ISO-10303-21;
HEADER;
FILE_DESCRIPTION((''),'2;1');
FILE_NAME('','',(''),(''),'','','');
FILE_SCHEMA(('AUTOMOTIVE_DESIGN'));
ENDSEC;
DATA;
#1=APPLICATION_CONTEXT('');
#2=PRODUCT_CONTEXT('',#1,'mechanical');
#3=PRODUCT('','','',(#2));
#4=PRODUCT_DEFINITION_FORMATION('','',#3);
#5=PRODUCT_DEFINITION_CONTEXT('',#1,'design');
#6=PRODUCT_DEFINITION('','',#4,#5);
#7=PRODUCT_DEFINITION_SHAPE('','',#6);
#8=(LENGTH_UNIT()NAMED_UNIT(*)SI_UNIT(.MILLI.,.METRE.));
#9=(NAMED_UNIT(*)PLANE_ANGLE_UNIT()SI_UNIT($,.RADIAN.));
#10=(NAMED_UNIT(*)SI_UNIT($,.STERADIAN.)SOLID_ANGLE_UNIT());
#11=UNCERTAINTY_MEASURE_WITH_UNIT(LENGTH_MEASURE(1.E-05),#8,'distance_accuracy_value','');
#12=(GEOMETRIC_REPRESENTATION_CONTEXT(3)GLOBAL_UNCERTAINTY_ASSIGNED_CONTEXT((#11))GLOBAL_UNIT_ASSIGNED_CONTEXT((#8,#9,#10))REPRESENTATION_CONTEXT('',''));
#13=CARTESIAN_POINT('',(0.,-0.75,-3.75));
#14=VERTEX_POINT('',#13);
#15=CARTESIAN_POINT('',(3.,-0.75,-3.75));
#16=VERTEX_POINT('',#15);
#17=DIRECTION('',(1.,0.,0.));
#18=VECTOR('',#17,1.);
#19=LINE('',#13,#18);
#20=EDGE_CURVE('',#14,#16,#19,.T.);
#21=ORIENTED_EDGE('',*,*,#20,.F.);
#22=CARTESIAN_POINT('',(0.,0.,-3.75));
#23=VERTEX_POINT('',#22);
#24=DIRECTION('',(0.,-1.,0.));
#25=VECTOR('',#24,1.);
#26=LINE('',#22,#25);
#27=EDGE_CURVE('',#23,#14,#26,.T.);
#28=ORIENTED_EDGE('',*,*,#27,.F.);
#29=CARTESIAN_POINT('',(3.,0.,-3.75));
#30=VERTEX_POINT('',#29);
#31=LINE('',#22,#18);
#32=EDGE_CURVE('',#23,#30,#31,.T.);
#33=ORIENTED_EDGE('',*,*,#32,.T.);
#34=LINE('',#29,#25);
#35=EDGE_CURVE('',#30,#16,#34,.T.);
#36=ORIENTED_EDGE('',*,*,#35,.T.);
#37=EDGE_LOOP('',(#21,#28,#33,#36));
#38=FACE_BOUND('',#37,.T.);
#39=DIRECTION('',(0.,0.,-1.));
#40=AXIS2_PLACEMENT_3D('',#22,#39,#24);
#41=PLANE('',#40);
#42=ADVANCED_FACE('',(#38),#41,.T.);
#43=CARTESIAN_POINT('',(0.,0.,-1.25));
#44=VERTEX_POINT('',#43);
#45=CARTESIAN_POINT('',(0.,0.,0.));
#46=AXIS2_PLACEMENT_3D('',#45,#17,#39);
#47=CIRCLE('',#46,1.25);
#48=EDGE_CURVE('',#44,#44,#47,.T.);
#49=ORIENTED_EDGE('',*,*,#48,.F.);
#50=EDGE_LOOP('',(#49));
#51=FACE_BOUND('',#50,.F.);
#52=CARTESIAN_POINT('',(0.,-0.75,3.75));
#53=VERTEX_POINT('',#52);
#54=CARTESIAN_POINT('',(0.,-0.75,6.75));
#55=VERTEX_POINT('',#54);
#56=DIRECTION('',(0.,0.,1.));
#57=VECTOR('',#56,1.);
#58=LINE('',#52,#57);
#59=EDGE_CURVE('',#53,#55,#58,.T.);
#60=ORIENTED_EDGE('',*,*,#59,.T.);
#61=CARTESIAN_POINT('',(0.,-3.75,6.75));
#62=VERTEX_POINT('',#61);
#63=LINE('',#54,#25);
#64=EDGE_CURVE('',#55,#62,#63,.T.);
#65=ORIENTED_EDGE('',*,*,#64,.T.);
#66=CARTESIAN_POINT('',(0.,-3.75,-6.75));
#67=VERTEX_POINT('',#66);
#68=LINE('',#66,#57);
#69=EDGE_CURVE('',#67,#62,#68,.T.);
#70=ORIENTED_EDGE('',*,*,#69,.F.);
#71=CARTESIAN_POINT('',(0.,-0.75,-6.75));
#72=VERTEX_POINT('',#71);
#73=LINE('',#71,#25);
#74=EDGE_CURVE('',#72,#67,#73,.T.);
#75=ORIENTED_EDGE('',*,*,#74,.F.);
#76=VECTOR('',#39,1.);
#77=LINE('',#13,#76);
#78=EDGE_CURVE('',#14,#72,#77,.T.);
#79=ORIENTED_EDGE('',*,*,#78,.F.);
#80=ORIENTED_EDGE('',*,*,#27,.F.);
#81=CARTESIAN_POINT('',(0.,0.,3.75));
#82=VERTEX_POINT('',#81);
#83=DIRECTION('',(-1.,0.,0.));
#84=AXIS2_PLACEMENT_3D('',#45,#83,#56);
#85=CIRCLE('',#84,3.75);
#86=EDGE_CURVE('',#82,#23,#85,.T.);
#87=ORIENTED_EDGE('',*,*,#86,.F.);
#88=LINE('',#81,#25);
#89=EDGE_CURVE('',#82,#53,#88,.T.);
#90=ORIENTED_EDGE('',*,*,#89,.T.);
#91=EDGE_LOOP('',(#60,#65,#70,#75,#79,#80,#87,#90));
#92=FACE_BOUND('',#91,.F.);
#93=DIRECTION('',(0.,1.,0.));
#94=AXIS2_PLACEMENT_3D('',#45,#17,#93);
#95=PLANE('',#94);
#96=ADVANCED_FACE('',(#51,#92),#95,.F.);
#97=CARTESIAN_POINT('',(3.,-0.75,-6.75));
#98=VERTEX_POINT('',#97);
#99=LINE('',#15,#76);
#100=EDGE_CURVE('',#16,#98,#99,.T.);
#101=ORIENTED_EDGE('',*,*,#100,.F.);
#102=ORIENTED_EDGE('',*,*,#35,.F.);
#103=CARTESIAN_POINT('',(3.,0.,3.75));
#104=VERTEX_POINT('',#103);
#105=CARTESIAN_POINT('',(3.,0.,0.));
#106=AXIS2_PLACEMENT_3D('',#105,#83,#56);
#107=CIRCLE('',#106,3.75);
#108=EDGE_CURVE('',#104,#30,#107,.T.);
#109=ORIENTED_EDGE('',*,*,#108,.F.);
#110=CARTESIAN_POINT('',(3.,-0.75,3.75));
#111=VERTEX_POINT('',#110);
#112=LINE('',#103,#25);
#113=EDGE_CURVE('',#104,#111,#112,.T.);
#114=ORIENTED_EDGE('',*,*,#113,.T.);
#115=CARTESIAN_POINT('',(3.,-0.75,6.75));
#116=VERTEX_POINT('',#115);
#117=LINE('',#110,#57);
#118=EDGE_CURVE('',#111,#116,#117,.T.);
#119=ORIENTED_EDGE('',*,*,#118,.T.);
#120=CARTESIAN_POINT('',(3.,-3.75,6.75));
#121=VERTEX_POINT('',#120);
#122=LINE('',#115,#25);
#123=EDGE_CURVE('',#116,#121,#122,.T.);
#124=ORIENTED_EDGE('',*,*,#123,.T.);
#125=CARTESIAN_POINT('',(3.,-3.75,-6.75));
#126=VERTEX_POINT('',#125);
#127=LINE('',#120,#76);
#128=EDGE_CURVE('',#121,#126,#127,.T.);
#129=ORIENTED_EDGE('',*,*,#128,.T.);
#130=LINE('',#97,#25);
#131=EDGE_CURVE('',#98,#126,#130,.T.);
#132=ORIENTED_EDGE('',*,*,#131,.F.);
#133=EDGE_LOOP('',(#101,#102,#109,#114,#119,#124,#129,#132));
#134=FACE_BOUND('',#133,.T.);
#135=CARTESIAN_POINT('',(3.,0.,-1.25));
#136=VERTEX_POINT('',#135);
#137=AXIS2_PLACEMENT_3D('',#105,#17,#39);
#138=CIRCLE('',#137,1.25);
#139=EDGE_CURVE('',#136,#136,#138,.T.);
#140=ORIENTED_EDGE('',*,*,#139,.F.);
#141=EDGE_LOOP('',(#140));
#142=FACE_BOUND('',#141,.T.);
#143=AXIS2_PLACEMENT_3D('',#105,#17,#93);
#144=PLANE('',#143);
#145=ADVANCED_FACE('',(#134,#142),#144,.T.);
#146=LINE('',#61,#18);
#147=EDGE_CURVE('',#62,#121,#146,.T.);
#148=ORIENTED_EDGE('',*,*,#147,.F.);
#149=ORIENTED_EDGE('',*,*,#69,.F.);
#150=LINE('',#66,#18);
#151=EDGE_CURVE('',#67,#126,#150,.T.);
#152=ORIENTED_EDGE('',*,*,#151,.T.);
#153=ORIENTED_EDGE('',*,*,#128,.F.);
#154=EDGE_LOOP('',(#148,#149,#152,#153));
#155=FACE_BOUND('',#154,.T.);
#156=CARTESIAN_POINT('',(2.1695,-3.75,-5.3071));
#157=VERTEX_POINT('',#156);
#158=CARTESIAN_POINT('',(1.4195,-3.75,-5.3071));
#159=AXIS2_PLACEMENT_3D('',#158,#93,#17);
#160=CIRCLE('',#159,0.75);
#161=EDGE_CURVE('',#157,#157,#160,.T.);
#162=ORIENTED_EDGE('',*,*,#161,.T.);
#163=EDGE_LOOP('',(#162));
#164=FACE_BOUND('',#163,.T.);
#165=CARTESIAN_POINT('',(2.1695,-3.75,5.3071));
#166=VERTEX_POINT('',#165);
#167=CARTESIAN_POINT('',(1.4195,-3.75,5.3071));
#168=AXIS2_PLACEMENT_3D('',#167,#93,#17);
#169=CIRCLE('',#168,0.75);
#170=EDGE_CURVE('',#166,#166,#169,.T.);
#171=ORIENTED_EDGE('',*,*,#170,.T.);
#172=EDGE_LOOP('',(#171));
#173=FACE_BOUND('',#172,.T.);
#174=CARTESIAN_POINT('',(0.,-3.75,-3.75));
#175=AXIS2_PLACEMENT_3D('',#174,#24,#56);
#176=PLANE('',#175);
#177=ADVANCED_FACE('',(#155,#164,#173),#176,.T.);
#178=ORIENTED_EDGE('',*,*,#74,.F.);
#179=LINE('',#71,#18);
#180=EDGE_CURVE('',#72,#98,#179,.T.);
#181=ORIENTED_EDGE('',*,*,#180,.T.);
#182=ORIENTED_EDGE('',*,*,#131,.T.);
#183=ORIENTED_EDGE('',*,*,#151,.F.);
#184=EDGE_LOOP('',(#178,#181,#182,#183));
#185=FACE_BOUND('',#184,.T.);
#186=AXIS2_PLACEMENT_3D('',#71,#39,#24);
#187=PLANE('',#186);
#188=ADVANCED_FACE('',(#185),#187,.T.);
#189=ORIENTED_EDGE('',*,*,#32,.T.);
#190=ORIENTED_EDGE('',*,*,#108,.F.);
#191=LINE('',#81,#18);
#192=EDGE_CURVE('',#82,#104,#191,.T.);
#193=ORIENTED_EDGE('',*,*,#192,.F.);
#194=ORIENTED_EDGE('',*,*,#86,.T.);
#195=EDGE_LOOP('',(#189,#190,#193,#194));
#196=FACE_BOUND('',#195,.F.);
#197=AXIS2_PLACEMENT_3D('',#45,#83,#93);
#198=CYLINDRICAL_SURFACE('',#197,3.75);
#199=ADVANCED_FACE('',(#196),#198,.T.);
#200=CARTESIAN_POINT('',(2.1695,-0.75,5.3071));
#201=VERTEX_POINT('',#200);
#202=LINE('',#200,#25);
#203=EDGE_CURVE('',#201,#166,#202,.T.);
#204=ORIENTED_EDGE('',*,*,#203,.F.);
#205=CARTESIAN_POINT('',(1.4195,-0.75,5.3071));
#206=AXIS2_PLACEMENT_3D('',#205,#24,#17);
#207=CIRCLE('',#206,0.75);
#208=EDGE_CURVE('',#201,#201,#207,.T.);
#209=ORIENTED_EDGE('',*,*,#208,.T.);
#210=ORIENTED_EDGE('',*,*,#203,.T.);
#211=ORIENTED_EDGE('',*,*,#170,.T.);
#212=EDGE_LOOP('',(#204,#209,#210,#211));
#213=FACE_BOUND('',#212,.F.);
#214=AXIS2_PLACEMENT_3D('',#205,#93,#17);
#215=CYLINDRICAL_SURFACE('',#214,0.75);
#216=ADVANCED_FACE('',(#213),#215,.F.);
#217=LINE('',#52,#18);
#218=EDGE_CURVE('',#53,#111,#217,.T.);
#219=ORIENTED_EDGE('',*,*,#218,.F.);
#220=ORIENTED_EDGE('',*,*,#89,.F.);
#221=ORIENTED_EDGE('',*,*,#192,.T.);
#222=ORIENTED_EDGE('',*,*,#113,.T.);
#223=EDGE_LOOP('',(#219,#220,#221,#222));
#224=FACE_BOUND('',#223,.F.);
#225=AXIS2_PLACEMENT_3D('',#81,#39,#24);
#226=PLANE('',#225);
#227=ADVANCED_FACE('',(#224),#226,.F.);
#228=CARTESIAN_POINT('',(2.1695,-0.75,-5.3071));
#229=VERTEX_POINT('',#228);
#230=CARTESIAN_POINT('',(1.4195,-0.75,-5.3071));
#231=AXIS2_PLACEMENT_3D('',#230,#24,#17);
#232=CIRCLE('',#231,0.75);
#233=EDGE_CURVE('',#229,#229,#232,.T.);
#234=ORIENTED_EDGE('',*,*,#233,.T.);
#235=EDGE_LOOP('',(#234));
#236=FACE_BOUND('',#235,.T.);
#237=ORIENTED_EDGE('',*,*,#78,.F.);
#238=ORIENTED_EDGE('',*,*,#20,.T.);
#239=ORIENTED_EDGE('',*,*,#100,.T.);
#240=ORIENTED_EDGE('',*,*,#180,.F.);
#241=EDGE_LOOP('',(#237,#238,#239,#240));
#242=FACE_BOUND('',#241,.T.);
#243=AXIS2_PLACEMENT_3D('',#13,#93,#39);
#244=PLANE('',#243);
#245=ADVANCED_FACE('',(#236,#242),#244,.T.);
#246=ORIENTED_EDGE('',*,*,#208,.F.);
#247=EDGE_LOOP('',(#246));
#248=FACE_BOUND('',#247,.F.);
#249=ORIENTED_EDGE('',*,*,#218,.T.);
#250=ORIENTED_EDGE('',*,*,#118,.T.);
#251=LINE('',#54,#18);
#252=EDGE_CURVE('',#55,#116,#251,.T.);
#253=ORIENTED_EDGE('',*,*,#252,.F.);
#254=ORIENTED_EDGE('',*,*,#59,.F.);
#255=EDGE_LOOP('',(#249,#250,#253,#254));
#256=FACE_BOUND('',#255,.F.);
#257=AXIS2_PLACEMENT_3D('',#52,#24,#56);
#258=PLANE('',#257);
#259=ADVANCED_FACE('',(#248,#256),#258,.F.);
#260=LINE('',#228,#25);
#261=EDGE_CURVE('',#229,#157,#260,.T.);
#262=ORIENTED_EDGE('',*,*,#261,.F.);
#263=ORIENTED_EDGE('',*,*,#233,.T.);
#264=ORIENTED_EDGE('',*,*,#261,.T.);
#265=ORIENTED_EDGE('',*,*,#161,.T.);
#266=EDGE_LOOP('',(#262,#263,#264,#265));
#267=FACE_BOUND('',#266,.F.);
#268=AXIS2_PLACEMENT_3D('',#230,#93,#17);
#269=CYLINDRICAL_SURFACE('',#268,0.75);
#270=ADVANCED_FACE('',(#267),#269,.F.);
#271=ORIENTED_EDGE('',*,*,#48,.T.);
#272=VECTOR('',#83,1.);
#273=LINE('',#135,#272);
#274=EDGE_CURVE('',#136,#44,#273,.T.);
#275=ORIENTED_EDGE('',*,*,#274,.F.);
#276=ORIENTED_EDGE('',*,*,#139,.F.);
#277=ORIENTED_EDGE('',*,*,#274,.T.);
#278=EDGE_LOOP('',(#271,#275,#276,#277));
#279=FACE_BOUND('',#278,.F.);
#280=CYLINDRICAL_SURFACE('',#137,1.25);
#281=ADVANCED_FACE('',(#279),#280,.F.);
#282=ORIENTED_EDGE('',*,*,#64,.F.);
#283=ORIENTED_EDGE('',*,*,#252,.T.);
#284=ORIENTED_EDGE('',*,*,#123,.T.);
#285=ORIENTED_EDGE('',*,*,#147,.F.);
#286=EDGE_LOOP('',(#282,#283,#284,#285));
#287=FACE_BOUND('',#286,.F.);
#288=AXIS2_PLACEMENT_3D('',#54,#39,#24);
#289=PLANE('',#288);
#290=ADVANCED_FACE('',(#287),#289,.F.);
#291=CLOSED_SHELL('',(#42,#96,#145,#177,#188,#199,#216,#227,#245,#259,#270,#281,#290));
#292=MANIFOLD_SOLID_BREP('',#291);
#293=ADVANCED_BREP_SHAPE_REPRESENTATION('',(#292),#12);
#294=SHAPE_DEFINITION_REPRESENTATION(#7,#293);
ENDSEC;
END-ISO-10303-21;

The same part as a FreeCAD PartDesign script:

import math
import FreeCAD as App
import Part
import Sketcher

doc = App.newDocument("Part")
body = doc.addObject("PartDesign::Body", "Body")

# Sketch on YZ plane
sketch1 = doc.addObject("Sketcher::SketchObject", "Sketch")
body.addObject(sketch1)
sketch1.AttachmentSupport = (doc.YZ_Plane, [""])
sketch1.MapMode = "FlatFace"
sketch1.addGeometry([
    Part.LineSegment(App.Vector(0, 3.8, 0), App.Vector(-0.8, 3.8, 0)),  # 0
    Part.LineSegment(App.Vector(-0.8, 3.8, 0), App.Vector(-0.8, 6.8, 0)),  # 1
    Part.LineSegment(App.Vector(-0.8, 6.8, 0), App.Vector(-3.8, 6.8, 0)),  # 2
    Part.LineSegment(App.Vector(-3.8, 6.8, 0), App.Vector(-3.8, -6.8, 0)),  # 3
    Part.LineSegment(App.Vector(-3.8, -6.8, 0), App.Vector(-0.8, -6.8, 0)),  # 4
    Part.LineSegment(App.Vector(-0.8, -6.8, 0), App.Vector(-0.8, -3.8, 0)),  # 5
    Part.LineSegment(App.Vector(-0.8, -3.8, 0), App.Vector(0, -3.8, 0)),  # 6
    Part.ArcOfCircle(Part.Circle(App.Vector(0, 0, 0), App.Vector(0, 0, 1), 3.8), math.radians(-90), math.radians(90)),  # 7
], False)
sketch1.addConstraint([
    Sketcher.Constraint("Coincident", 0, 2, 1, 1),
    Sketcher.Constraint("Coincident", 1, 2, 2, 1),
    Sketcher.Constraint("Coincident", 2, 2, 3, 1),
    Sketcher.Constraint("Coincident", 3, 2, 4, 1),
    Sketcher.Constraint("Coincident", 4, 2, 5, 1),
    Sketcher.Constraint("Coincident", 5, 2, 6, 1),
    Sketcher.Constraint("Tangent", 6, 2, 7, 1),
    Sketcher.Constraint("Tangent", 7, 2, 0, 1),
    Sketcher.Constraint("Horizontal", 0),
    Sketcher.Constraint("Vertical", 1),
    Sketcher.Constraint("Horizontal", 2),
    Sketcher.Constraint("Vertical", 3),
    Sketcher.Constraint("Horizontal", 4),
    Sketcher.Constraint("Vertical", 5),
    Sketcher.Constraint("Horizontal", 6),
    Sketcher.Constraint("Coincident", 7, 3, -1, 1),
    Sketcher.Constraint("Symmetric", 1, 2, 4, 2, -1),
    Sketcher.Constraint("Equal", 4, 1),
    Sketcher.Constraint("DistanceX", 2, 2, 2, 1, 3.0),
    Sketcher.Constraint("Radius", 7, 3.75),
    Sketcher.Constraint("DistanceX", 0, 2, 0, 1, 0.75),
])
pad1 = doc.addObject("PartDesign::Pad", "Pad")
body.addObject(pad1)
pad1.Profile = sketch1
pad1.Length = 3

# Sketch on YZ plane
sketch2 = doc.addObject("Sketcher::SketchObject", "Sketch001")
body.addObject(sketch2)
sketch2.AttachmentSupport = (doc.YZ_Plane, [""])
sketch2.MapMode = "FlatFace"
sketch2.AttachmentOffset = App.Placement(App.Vector(0, 0, 3), App.Rotation())
sketch2.addGeometry(Part.Circle(App.Vector(0, 0, 0), App.Vector(0, 0, 1), 1.2), False)
sketch2.addConstraint([
    Sketcher.Constraint("Coincident", 0, 3, -1, 1),
    Sketcher.Constraint("Diameter", 0, 2.5),
])
pocket1 = doc.addObject("PartDesign::Pocket", "Pocket")
body.addObject(pocket1)
pocket1.Profile = sketch2
pocket1.Length = 10

# Sketch on XZ plane
sketch3 = doc.addObject("Sketcher::SketchObject", "Sketch002")
body.addObject(sketch3)
sketch3.AttachmentSupport = (doc.XZ_Plane, [""])
sketch3.MapMode = "FlatFace"
sketch3.AttachmentOffset = App.Placement(App.Vector(0, 0, 0.75), App.Rotation())
sketch3.addGeometry([
    Part.Circle(App.Vector(1.4, 5.3, 0), App.Vector(0, 0, 1), 0.8),
    Part.Circle(App.Vector(1.4, -5.3, 0), App.Vector(0, 0, 1), 0.8),
], False)
sketch3.addConstraint([
    Sketcher.Constraint("Equal", 0, 1),
    Sketcher.Constraint("Symmetric", 0, 3, 1, 3, -1),
    Sketcher.Constraint("Diameter", 0, 1.5),
    Sketcher.Constraint("DistanceY", -1, 1, 0, 3, 5.307),
    Sketcher.Constraint("DistanceX", -1, 1, 0, 3, 1.4195),
])
pocket2 = doc.addObject("PartDesign::Pocket", "Pocket001")
body.addObject(pocket2)
pocket2.Profile = sketch3
pocket2.Length = 10
pocket2.Reversed = True

doc.recompute()
